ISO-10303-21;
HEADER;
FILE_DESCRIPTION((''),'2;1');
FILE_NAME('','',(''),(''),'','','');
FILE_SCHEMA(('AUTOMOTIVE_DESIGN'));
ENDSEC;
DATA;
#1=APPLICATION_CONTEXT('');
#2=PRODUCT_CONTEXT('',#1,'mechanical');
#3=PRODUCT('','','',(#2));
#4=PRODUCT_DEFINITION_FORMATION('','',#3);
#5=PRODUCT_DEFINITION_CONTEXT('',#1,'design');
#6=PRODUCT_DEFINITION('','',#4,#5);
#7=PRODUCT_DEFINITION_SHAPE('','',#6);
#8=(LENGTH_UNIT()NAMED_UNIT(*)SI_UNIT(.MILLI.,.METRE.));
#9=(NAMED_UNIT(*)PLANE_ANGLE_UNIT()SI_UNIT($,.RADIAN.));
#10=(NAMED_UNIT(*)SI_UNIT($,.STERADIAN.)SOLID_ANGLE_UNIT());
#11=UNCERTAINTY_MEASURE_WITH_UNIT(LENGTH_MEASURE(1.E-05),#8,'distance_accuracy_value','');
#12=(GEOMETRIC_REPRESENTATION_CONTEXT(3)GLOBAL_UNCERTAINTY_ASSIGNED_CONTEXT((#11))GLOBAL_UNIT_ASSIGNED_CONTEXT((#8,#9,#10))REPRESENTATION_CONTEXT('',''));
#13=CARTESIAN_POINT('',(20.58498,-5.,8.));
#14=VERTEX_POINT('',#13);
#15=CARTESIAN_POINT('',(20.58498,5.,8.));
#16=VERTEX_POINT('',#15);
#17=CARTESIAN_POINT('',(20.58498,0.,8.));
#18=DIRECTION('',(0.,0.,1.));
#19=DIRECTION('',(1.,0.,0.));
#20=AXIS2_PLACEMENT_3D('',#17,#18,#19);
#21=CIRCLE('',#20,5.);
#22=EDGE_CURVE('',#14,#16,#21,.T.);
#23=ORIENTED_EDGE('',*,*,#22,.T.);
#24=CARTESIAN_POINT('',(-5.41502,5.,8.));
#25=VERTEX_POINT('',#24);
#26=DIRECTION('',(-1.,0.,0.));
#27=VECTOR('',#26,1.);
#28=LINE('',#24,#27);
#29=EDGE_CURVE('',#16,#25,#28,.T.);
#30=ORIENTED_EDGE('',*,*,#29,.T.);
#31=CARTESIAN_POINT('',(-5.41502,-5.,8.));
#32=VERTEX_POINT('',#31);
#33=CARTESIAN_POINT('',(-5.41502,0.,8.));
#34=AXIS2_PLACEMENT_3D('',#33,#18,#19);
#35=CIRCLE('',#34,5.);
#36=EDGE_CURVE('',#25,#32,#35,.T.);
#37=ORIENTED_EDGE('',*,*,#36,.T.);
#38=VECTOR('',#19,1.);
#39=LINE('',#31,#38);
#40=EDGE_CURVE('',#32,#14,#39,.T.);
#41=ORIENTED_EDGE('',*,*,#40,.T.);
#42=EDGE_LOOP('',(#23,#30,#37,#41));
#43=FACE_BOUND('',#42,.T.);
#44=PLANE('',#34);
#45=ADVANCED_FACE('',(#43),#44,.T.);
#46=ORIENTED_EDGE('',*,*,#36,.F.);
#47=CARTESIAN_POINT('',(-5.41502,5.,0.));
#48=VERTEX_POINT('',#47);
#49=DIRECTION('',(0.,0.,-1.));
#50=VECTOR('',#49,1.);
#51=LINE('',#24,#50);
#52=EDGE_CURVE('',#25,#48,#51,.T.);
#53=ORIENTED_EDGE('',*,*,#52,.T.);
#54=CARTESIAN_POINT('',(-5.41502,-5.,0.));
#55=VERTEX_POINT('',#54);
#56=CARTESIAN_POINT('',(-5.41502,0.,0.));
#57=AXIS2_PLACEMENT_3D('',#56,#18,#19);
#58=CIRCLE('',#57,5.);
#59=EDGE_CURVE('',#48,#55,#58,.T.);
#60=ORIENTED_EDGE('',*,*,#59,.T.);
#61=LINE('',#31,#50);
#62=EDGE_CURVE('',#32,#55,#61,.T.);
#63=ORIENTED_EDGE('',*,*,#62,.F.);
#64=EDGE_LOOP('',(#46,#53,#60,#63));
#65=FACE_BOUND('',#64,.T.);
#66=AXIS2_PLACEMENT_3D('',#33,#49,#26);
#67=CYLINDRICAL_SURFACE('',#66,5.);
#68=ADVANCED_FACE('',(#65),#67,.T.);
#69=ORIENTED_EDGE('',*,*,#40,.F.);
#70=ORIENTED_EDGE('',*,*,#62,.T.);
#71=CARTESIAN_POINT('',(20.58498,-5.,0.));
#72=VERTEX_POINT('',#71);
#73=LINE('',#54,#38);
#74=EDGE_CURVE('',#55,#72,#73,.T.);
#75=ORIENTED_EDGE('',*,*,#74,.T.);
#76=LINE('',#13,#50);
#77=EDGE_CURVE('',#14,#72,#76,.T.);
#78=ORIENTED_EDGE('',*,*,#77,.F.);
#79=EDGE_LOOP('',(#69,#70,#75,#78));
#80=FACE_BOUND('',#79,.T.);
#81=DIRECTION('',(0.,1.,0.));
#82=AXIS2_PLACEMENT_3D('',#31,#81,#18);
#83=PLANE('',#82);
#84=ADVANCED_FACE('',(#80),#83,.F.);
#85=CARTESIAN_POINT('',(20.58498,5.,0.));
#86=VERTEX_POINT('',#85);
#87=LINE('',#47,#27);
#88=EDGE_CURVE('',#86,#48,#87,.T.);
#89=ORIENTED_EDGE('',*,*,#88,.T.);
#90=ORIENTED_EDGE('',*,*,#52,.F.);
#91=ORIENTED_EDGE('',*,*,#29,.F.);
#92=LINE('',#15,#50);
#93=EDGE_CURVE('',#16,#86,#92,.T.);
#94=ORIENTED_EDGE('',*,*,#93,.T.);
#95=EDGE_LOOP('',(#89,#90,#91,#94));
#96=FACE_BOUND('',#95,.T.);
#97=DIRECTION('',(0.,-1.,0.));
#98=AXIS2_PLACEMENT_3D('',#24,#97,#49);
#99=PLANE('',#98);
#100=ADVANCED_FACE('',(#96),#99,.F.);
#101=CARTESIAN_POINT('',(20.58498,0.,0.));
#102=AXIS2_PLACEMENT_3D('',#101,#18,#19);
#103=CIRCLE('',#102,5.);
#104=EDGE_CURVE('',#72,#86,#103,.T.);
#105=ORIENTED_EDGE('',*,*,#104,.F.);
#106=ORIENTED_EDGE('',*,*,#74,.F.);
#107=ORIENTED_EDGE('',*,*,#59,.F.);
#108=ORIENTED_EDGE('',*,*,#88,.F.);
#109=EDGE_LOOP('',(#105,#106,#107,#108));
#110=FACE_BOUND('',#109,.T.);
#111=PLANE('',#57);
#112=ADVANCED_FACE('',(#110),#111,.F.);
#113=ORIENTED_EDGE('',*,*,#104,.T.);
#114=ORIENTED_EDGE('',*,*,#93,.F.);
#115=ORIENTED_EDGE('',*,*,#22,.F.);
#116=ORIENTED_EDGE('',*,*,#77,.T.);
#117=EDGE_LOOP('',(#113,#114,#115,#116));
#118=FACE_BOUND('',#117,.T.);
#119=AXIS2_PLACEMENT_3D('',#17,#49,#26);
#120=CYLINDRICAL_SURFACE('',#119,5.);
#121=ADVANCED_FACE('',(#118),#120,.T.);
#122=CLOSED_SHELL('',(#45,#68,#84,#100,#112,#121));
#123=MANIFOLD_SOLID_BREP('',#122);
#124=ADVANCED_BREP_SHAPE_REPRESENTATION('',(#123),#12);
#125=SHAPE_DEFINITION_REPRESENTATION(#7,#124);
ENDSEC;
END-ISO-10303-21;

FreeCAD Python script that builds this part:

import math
import FreeCAD as App
import Part
import Sketcher

V = App.Vector
Q = App.Units.Quantity

doc = App.newDocument("Part")
body = doc.addObject("PartDesign::Body", "Body")

# Sketch on XY plane
sketch1 = body.newObject("Sketcher::SketchObject", "Sketch")
sketch1.AttachmentSupport = (doc.getObject("XY_Plane"), [""])
sketch1.MapMode = "FlatFace"
sketch1.addGeometry(Part.LineSegment(V(21, 5, 0), V(-5, 5, 0)), False)
sketch1.addGeometry(Part.ArcOfCircle(Part.Circle(V(-5, 0, 0), V(0, 0, 1), 5), math.radians(90), math.radians(270)), False)
sketch1.addGeometry(Part.LineSegment(V(-5, -5, 0), V(21, -5, 0)), False)
sketch1.addGeometry(Part.ArcOfCircle(Part.Circle(V(21, 0, 0), V(0, 0, 1), 5), math.radians(-90), math.radians(90)), False)
sketch1.addConstraint(Sketcher.Constraint("Tangent", 0, 2, 1, 1))
sketch1.addConstraint(Sketcher.Constraint("Tangent", 1, 2, 2, 1))
sketch1.addConstraint(Sketcher.Constraint("Tangent", 2, 2, 3, 1))
sketch1.addConstraint(Sketcher.Constraint("Tangent", 3, 2, 0, 1))
sketch1.addConstraint(Sketcher.Constraint("Horizontal", 0))
sketch1.addConstraint(Sketcher.Constraint("Horizontal", 2))
sketch1.addConstraint(Sketcher.Constraint("PointOnObject", 1, 3, -1))
sketch1.addConstraint(Sketcher.Constraint("Radius", 1, Q("5 mm")))
sketch1.addConstraint(Sketcher.Constraint("DistanceX", 0, 2, 0, 1, Q("26 mm")))
sketch1.addConstraint(Sketcher.Constraint("DistanceX", 1, 3, -1, 1, Q("5.41502 mm")))
pad1 = body.newObject("PartDesign::Pad", "Pad")
pad1.Profile = sketch1
pad1.Length = 8

doc.recompute()
